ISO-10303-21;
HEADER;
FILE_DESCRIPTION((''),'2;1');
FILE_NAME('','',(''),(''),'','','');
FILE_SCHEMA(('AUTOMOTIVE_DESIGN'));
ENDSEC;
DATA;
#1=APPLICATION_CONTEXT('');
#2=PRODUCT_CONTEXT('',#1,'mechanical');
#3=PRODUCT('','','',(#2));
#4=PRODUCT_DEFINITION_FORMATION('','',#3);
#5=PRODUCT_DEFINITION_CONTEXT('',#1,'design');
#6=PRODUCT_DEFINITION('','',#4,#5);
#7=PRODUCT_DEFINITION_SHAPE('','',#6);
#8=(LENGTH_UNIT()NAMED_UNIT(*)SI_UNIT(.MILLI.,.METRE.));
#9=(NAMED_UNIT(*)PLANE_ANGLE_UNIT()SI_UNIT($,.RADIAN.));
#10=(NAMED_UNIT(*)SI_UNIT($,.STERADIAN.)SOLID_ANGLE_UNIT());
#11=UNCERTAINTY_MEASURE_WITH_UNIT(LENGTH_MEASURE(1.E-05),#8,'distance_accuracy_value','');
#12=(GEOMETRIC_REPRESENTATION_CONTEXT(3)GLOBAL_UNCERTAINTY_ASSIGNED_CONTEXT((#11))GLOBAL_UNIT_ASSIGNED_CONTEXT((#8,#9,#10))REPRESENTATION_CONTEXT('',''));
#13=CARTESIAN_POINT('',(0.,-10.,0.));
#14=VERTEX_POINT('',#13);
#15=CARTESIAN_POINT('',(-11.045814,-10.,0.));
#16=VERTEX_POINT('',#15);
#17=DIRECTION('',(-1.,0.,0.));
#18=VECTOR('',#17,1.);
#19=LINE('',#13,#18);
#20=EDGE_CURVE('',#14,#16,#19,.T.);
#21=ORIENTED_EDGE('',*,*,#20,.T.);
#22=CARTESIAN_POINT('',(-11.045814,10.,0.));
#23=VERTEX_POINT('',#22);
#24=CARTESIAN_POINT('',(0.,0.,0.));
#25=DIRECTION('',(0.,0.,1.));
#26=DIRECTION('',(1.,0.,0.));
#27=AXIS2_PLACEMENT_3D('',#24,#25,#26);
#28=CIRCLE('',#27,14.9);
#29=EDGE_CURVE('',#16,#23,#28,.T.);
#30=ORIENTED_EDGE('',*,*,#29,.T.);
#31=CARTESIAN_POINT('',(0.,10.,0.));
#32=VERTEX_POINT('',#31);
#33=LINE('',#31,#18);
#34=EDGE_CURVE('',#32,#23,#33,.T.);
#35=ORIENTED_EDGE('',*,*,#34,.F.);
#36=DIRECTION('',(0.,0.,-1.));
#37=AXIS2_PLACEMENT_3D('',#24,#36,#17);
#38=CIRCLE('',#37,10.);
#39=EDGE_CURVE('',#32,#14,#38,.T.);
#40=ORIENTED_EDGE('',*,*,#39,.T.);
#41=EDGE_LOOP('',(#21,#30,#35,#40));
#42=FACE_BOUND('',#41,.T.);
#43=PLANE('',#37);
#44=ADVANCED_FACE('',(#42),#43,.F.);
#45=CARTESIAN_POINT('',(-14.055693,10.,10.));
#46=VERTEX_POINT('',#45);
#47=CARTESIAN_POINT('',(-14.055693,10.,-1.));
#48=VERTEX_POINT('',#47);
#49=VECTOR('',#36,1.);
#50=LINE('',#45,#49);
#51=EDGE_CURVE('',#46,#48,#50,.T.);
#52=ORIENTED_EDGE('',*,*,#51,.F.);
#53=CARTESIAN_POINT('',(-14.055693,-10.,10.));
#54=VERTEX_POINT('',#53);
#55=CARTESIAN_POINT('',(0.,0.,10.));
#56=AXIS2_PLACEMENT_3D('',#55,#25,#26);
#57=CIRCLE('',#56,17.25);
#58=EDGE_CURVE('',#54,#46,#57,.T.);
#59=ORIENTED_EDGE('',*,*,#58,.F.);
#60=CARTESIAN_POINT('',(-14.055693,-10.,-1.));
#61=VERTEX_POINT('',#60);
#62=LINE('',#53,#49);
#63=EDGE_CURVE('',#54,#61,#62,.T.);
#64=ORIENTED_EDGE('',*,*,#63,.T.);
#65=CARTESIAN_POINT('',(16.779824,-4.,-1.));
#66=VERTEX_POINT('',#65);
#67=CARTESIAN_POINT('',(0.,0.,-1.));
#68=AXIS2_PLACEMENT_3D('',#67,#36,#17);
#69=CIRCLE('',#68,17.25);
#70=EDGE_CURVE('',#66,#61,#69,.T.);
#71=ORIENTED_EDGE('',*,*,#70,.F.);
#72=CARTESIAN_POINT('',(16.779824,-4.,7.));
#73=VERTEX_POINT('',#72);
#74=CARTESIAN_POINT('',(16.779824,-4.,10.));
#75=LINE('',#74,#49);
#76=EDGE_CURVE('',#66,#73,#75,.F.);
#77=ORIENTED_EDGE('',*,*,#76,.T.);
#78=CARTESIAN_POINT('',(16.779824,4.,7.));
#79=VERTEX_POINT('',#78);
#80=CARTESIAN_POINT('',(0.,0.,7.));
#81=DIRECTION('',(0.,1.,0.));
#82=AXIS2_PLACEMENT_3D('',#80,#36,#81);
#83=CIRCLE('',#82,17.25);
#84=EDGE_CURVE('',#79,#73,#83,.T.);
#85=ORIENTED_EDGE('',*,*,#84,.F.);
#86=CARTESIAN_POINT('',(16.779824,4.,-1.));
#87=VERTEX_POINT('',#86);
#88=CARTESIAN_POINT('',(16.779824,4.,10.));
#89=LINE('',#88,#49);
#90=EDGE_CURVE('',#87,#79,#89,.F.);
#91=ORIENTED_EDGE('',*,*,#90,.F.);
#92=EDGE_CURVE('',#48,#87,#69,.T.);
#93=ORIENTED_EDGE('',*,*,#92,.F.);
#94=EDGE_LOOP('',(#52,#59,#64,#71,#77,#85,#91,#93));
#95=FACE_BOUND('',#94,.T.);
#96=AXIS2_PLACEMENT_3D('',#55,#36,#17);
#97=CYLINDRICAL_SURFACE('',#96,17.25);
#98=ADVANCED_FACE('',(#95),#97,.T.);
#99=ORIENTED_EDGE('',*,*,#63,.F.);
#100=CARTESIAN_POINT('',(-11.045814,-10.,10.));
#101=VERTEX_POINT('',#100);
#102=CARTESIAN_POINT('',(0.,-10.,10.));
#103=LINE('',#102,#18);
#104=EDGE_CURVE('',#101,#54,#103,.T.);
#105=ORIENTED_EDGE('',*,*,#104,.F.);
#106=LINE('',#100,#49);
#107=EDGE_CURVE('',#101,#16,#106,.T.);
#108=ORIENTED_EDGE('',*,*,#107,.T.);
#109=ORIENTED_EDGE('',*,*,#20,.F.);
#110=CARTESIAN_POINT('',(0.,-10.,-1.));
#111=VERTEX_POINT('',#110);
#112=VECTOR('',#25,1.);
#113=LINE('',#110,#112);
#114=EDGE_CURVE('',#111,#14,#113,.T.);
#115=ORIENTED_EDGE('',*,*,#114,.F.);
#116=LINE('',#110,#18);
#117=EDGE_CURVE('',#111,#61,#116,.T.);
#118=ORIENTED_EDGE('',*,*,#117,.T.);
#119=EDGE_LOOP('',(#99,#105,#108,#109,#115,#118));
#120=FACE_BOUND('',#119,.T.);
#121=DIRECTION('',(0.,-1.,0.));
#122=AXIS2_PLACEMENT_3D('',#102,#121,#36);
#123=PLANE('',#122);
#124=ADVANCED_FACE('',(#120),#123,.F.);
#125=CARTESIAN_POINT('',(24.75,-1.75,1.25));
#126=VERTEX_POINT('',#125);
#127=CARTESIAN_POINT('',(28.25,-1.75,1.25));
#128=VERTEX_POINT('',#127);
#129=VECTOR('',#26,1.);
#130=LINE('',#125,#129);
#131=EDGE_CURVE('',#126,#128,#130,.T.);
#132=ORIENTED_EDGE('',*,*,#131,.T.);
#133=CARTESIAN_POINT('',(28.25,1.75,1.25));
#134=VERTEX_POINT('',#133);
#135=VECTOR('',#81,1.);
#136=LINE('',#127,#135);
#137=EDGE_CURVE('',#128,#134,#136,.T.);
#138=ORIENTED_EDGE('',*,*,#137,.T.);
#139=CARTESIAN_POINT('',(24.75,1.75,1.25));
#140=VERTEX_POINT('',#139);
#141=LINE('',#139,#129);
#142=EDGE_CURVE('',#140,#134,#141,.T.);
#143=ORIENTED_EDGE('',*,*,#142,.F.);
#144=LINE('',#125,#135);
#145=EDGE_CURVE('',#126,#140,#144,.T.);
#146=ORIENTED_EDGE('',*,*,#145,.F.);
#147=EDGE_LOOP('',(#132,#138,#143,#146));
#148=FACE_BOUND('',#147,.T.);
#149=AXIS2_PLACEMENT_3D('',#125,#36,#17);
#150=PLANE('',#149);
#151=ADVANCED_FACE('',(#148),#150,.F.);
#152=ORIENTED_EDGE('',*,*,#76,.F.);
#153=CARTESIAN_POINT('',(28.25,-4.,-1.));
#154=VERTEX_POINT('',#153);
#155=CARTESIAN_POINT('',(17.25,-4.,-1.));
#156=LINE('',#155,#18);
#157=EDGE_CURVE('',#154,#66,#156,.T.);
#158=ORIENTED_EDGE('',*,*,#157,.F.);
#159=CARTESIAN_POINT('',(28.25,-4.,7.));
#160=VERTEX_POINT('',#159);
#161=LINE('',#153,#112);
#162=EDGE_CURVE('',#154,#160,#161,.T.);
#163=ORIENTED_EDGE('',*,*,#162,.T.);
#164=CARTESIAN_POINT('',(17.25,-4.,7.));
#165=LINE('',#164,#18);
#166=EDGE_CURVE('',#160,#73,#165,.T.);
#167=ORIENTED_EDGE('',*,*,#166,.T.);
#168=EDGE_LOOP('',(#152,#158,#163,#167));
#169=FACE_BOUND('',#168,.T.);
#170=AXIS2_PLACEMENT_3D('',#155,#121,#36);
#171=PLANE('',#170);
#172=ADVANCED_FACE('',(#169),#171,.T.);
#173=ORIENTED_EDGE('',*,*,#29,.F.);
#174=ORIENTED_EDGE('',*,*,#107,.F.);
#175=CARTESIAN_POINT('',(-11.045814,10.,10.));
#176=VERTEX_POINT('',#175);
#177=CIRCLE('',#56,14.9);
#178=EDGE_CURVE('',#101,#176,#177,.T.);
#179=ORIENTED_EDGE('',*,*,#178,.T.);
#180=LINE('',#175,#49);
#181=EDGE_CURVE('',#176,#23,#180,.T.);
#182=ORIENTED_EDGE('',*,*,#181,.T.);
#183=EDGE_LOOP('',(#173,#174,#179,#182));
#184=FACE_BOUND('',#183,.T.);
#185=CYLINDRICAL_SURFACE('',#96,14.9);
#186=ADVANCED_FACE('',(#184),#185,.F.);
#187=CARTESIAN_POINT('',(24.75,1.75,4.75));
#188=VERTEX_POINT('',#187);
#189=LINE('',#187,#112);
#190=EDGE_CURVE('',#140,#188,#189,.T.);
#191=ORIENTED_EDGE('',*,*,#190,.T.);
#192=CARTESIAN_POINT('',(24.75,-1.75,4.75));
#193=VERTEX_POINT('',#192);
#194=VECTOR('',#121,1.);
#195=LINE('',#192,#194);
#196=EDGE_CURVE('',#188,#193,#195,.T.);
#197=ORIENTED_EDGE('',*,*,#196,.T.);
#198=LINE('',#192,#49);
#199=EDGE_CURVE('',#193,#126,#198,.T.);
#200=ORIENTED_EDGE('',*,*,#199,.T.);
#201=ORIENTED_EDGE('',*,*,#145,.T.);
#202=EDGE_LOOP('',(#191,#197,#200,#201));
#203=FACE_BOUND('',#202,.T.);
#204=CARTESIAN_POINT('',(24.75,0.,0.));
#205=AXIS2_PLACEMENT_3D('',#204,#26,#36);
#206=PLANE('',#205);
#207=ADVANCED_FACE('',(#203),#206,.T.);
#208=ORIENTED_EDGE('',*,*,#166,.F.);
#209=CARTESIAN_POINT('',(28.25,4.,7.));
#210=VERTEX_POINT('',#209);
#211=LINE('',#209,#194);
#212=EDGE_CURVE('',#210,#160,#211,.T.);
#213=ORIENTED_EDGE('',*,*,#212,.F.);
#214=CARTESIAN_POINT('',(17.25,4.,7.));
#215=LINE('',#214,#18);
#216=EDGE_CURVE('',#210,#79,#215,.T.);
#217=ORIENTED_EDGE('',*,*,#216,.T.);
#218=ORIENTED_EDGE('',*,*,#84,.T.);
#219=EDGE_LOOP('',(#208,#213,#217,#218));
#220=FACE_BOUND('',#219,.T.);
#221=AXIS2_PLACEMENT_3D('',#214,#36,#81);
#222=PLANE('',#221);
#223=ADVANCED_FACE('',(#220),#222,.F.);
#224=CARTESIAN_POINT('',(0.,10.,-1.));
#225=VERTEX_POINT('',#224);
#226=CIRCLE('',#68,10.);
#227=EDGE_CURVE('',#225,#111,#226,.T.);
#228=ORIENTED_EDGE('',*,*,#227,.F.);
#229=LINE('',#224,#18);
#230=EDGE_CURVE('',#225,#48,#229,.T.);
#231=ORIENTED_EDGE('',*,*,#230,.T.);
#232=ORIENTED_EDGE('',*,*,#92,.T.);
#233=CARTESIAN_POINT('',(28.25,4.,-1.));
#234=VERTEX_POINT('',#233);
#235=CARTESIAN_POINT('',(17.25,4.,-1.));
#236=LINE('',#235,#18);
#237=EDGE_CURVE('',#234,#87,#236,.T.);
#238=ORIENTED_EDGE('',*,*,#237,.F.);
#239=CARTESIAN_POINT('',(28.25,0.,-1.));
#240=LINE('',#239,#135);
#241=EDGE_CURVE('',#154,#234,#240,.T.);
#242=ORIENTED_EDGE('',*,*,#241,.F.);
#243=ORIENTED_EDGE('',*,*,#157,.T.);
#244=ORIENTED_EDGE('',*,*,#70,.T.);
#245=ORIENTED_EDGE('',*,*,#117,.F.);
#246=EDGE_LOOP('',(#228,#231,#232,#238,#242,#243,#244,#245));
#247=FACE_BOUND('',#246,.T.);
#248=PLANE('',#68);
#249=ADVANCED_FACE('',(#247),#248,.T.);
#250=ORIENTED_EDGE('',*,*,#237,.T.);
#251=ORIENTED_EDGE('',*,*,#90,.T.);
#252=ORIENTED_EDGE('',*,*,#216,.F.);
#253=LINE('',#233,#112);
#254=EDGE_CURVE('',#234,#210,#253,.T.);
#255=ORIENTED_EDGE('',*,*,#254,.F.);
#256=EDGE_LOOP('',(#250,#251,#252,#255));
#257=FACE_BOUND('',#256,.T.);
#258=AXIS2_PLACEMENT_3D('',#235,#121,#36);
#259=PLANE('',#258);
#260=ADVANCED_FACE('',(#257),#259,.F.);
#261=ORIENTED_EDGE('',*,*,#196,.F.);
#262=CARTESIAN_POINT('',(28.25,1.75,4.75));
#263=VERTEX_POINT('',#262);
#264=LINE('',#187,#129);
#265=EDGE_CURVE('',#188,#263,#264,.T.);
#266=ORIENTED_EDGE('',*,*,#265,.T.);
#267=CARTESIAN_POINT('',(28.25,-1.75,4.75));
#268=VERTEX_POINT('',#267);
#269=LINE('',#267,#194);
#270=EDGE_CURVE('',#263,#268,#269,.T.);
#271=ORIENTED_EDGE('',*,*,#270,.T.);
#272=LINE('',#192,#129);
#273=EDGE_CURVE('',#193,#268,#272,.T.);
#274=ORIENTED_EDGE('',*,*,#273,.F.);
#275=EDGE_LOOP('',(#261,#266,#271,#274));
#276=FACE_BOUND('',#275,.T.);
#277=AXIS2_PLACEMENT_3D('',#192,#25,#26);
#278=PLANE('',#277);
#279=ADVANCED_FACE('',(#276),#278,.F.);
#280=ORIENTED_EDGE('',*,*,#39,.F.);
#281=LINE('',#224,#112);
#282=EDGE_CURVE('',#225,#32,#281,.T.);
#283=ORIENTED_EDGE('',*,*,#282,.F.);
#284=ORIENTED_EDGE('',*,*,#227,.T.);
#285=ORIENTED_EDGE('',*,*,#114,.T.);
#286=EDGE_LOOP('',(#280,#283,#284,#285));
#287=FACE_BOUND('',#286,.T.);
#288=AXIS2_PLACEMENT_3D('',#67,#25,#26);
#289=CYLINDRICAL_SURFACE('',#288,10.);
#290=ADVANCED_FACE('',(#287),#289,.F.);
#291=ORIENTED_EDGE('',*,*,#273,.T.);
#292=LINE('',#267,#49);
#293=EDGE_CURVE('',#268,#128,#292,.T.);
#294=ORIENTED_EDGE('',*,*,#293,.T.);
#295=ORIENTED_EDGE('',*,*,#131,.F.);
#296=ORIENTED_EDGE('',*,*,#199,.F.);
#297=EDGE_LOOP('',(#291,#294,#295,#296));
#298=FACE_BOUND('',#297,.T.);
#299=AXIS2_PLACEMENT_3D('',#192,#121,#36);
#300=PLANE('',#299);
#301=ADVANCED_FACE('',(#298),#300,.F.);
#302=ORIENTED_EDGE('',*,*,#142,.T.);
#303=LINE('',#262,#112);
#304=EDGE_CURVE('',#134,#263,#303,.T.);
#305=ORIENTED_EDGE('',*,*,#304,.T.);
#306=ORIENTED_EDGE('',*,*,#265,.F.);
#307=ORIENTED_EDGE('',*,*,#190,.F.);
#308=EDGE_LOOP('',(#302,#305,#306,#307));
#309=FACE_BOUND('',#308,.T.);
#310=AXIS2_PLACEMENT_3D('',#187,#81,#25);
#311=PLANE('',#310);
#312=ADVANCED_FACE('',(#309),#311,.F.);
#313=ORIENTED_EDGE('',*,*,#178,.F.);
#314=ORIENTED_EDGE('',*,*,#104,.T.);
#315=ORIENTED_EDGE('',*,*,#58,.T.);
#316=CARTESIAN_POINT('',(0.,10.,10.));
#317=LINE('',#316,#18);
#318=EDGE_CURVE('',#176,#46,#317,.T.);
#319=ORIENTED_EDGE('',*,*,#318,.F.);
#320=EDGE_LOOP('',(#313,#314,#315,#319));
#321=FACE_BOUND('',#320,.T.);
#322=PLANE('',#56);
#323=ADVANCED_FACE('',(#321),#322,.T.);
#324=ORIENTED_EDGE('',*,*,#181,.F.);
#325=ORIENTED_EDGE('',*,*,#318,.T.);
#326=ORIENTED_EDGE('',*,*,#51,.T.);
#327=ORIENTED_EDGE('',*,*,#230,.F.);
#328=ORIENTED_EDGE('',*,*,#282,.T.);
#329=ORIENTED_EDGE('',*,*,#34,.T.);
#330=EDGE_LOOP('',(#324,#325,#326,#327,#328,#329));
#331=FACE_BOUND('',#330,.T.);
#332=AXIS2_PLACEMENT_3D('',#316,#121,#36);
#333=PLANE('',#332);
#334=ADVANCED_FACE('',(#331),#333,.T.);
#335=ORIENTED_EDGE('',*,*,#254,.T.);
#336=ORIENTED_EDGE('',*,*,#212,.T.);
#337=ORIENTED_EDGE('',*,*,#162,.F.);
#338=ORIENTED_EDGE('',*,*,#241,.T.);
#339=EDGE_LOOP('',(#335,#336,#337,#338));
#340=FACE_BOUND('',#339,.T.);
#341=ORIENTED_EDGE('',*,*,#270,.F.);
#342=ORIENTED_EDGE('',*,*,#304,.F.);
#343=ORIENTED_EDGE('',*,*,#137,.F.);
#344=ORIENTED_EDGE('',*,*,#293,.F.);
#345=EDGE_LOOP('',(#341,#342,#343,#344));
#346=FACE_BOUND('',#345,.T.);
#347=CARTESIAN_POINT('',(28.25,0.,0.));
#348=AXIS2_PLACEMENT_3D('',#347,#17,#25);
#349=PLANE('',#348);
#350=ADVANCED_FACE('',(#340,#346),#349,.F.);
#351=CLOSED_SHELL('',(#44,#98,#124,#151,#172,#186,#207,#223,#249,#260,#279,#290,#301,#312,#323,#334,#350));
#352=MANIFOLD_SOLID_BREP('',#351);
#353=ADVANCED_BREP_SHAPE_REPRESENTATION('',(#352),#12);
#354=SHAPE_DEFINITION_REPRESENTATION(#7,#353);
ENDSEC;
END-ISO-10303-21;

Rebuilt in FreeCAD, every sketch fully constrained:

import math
import FreeCAD as App
import Part
import Sketcher

V = App.Vector
Q = App.Units.Quantity


def add_polygon(sketch, points):
    """Adds a closed chain of lines whose ends are joined by coincident constraints."""
    first, n = sketch.GeometryCount, len(points)
    for a, b in zip(points, points[1:] + points[:1]):
        sketch.addGeometry(Part.LineSegment(App.Vector(*a, 0), App.Vector(*b, 0)), False)
    for i in range(n):
        sketch.addConstraint(Sketcher.Constraint("Coincident", first + i, 2, first + (i + 1) % n, 1))

doc = App.newDocument("Part")
params = doc.addObject("Spreadsheet::Sheet", "Params")
for row, (alias, value) in enumerate([
    ("sketch1_diameter", "34.5 mm"),
    ("sketch1_diameter2", "29.8 mm"),
    ("pad1_length", "10 mm"),
    ("sketch2_diameter", "20 mm"),
    ("sketch2_diameter2", "34.5 mm"),
    ("pad2_length", "1 mm"),
    ("sketch3_radius", "10 mm"),
    ("sketch3_radius2", "17.25 mm"),
    ("sketch4_width", "8 mm"),
    ("pad3_length", "11 mm"),
    ("pad3_length2", "1.5 mm"),
    ("sketch5_width", "3.5 mm"),
    ("pocket2_length", "3.5 mm"),
], start=1):
    params.set(f"A{row}", alias)
    params.set(f"B{row}", "=" + value)
    params.setAlias(f"B{row}", alias)

body = doc.addObject("PartDesign::Body", "Body")

sketch1 = doc.addObject("Sketcher::SketchObject", "Sketch")
body.addObject(sketch1)
sketch1.AttachmentSupport = (doc.XY_Plane, [""])
sketch1.MapMode = "FlatFace"
sketch1.addGeometry([
    Part.Circle(V(0, 0, 0), V(0, 0, 1), 17),
    Part.Circle(V(0, 0, 0), V(0, 0, 1), 15),
], False)
sketch1.addConstraint([
    Sketcher.Constraint("Coincident", 0, 3, -1, 1),
    Sketcher.Constraint("Coincident", 1, 3, -1, 1),
    Sketcher.Constraint("Diameter", 0, Q("34.5 mm")),
    Sketcher.Constraint("Diameter", 1, Q("29.8 mm")),
])
sketch1.setExpression("Constraints[2]", "Params.sketch1_diameter")
sketch1.setExpression("Constraints[3]", "Params.sketch1_diameter2")
pad1 = doc.addObject("PartDesign::Pad", "Pad")
body.addObject(pad1)
pad1.Profile = sketch1
pad1.setExpression("Length", "Params.pad1_length")

sketch2 = doc.addObject("Sketcher::SketchObject", "Sketch001")
body.addObject(sketch2)
sketch2.AttachmentSupport = (doc.XY_Plane, [""])
sketch2.MapMode = "FlatFace"
sketch2.AttachmentOffset = App.Placement(V(0, 0, -1), App.Rotation())
sketch2.addGeometry([
    Part.Circle(V(0, 0, 0), V(0, 0, 1), 17),
    Part.Circle(V(0, 0, 0), V(0, 0, 1), 10),
], False)
sketch2.addConstraint([
    Sketcher.Constraint("Coincident", 0, 3, -1, 1),
    Sketcher.Constraint("Coincident", 1, 3, -1, 1),
    Sketcher.Constraint("Diameter", 1, Q("20 mm")),
    Sketcher.Constraint("Diameter", 0, Q("34.5 mm")),
])
sketch2.setExpression("Constraints[2]", "Params.sketch2_diameter")
sketch2.setExpression("Constraints[3]", "Params.sketch2_diameter2")
pad2 = doc.addObject("PartDesign::Pad", "Pad001")
body.addObject(pad2)
pad2.Profile = sketch2
pad2.setExpression("Length", "Params.pad2_length")

sketch3 = doc.addObject("Sketcher::SketchObject", "Sketch002")
body.addObject(sketch3)
sketch3.AttachmentSupport = (doc.XY_Plane, [""])
sketch3.MapMode = "FlatFace"
sketch3.AttachmentOffset = App.Placement(V(0, 0, -1), App.Rotation())
sketch3.addGeometry([
    Part.ArcOfCircle(Part.Circle(V(0, 0, 0), V(0, 0, 1), 10), math.radians(-90), math.radians(90)),
    Part.LineSegment(V(0, -10, 0), V(-14, -10, 0)),
    Part.ArcOfCircle(Part.Circle(V(0, 0, 0), V(0, 0, 1), 17), math.radians(-180), math.radians(-145)),
    Part.ArcOfCircle(Part.Circle(V(0, 0, 0), V(0, 0, 1), 17), math.radians(145), math.radians(180)),
    Part.LineSegment(V(-14, 10, 0), V(0, 10, 0)),
], False)
sketch3.addConstraint([
    Sketcher.Constraint("Tangent", 0, 1, 1, 1),
    Sketcher.Constraint("Coincident", 1, 2, 2, 2),
    Sketcher.Constraint("Tangent", 2, 1, 3, 2),
    Sketcher.Constraint("Coincident", 3, 1, 4, 1),
    Sketcher.Constraint("Tangent", 4, 2, 0, 2),
    Sketcher.Constraint("Horizontal", 1),
    Sketcher.Constraint("Horizontal", 4),
    Sketcher.Constraint("Coincident", 0, 3, -1, 1),
    Sketcher.Constraint("Coincident", 2, 3, -1, 1),
    Sketcher.Constraint("Equal", 2, 3),
    Sketcher.Constraint("PointOnObject", 2, 1, -1),
    Sketcher.Constraint("Radius", 0, Q("10 mm")),
    Sketcher.Constraint("Radius", 2, Q("17.25 mm")),
])
sketch3.setExpression("Constraints[11]", "Params.sketch3_radius")
sketch3.setExpression("Constraints[12]", "Params.sketch3_radius2")
pocket1 = doc.addObject("PartDesign::Pocket", "Pocket")
body.addObject(pocket1)
pocket1.Profile = sketch3
pocket1.Type = "ThroughAll"
pocket1.Reversed = True

sketch4 = doc.addObject("Sketcher::SketchObject", "Sketch003")
body.addObject(sketch4)
sketch4.AttachmentSupport = (doc.YZ_Plane, [""])
sketch4.MapMode = "FlatFace"
sketch4.AttachmentOffset = App.Placement(V(0, 0, 17.25), App.Rotation())
add_polygon(sketch4, [(-4, -1), (4, -1), (4, 7), (-4, 7)])
sketch4.addConstraint([
    Sketcher.Constraint("Horizontal", 0),
    Sketcher.Constraint("Vertical", 1),
    Sketcher.Constraint("Horizontal", 2),
    Sketcher.Constraint("Vertical", 3),
    Sketcher.Constraint("Equal", 2, 1),
    Sketcher.Constraint("DistanceX", 0, 1, 0, 2, Q("8 mm")),
    Sketcher.Constraint("DistanceX", -1, 1, 0, 2, Q("4 mm")),
    Sketcher.Constraint("DistanceY", 0, 2, -1, 1, Q("1 mm")),
])
sketch4.setExpression("Constraints[9]", "Params.sketch4_width")
pad3 = doc.addObject("PartDesign::Pad", "Pad002")
body.addObject(pad3)
pad3.Profile = sketch4
pad3.Type = "TwoLengths"
pad3.setExpression("Length", "Params.pad3_length")
pad3.setExpression("Length2", "Params.pad3_length2")

sketch5 = doc.addObject("Sketcher::SketchObject", "Sketch004")
body.addObject(sketch5)
sketch5.AttachmentSupport = (doc.YZ_Plane, [""])
sketch5.MapMode = "FlatFace"
sketch5.AttachmentOffset = App.Placement(V(0, 0, 28.25), App.Rotation())
add_polygon(sketch5, [(1.8, 4.8), (-1.8, 4.8), (-1.8, 1.2), (1.8, 1.2)])
sketch5.addConstraint([
    Sketcher.Constraint("Horizontal", 0),
    Sketcher.Constraint("Vertical", 1),
    Sketcher.Constraint("Horizontal", 2),
    Sketcher.Constraint("Vertical", 3),
    Sketcher.Constraint("Equal", 2, 1),
    Sketcher.Constraint("DistanceX", 0, 2, 0, 1, Q("3.5 mm")),
    Sketcher.Constraint("DistanceX", 0, 2, -1, 1, Q("1.75 mm")),
    Sketcher.Constraint("DistanceY", -1, 1, 0, 2, Q("4.75 mm")),
])
sketch5.setExpression("Constraints[9]", "Params.sketch5_width")
pocket2 = doc.addObject("PartDesign::Pocket", "Pocket001")
body.addObject(pocket2)
pocket2.Profile = sketch5
pocket2.setExpression("Length", "Params.pocket2_length")

doc.recompute()
